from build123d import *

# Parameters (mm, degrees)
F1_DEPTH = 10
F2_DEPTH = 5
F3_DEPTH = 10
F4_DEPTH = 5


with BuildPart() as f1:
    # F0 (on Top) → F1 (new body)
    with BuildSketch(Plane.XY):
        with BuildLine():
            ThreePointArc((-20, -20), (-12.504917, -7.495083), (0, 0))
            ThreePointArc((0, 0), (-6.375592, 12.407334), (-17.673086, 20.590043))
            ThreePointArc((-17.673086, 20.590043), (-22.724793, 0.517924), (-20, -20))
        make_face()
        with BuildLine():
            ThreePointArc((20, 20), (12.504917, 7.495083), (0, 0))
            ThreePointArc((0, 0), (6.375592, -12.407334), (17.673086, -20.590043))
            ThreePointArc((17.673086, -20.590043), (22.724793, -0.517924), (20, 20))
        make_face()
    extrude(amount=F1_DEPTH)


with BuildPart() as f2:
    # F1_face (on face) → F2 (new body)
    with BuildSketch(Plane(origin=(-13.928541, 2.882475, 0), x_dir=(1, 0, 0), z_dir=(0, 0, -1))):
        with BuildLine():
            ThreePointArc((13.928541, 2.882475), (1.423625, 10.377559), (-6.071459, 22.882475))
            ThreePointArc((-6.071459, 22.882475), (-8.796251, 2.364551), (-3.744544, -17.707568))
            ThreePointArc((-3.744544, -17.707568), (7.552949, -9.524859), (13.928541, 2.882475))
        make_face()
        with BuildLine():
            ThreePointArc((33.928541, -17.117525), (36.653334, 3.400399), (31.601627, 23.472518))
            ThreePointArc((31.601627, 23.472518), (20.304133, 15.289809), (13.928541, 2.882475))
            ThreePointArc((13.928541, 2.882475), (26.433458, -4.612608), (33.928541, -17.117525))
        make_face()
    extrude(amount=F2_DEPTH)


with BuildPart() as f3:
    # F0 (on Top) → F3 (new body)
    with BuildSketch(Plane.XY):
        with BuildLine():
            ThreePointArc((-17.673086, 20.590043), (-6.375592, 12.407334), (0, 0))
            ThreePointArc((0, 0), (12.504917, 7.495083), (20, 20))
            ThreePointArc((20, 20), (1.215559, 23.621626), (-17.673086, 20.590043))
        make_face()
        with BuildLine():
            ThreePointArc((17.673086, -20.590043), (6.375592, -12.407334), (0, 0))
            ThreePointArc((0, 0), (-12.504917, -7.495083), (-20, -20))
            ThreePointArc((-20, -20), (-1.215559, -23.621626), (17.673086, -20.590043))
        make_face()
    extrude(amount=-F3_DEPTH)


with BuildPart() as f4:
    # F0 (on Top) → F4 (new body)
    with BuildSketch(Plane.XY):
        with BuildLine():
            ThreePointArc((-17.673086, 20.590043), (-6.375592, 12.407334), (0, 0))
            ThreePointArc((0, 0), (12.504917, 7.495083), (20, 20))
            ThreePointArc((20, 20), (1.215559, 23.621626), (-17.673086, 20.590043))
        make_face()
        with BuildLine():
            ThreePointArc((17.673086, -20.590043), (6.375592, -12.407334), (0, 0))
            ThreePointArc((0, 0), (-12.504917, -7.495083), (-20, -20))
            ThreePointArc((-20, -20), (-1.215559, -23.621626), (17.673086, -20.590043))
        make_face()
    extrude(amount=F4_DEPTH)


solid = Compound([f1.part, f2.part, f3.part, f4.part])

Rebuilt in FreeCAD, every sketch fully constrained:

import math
import FreeCAD as App
import Part
import Sketcher

doc = App.newDocument("Part")
params = doc.addObject("Spreadsheet::Sheet", "Params")
for row, (alias, value) in enumerate([
    ("pad1_length", "10 mm"),
    ("pad2_length", "5 mm"),
    ("pad3_length", "10 mm"),
    ("pad4_length", "5 mm"),
], start=1):
    params.set(f"A{row}", alias)
    params.set(f"B{row}", "=" + value)
    params.setAlias(f"B{row}", alias)

body = doc.addObject("PartDesign::Body", "Body")
body.AllowCompound = True

sketch1 = body.newObject("Sketcher::SketchObject", "Sketch")
sketch1.AttachmentSupport = (doc.getObject("XY_Plane"), [""])
sketch1.MapMode = "FlatFace"
sketch1.addGeometry([
    Part.ArcOfCircle(Part.Circle(App.Vector(8.708283, -28.708283, 0), App.Vector(0, 0, 1), 29.999995), math.radians(106.874489), math.radians(163.125511)),
    Part.ArcOfCircle(Part.Circle(App.Vector(-29.13991, -7.132001, 0), App.Vector(0, 0, 1), 29.999996), math.radians(13.752802), math.radians(67.528272)),
    Part.ArcOfCircle(Part.Circle(App.Vector(32.185049, -2.629904, 0), App.Vector(0, 0, 1), 54.999996), math.radians(155.027647), math.radians(198.41032)),
    Part.ArcOfCircle(Part.Circle(App.Vector(-8.708283, 28.708283, 0), App.Vector(0, 0, 1), 29.999995), math.radians(-73.125511), math.radians(-16.874489)),
    Part.ArcOfCircle(Part.Circle(App.Vector(29.13991, 7.132001, 0), App.Vector(0, 0, 1), 29.999996), math.radians(-166.247198), math.radians(-112.471728)),
    Part.ArcOfCircle(Part.Circle(App.Vector(-32.185049, 2.629904, 0), App.Vector(0, 0, 1), 54.999996), math.radians(-24.972353), math.radians(18.41032)),
], False)
sketch1.addConstraint([
    Sketcher.Constraint("Coincident", 0, 1, 1, 1),
    Sketcher.Constraint("Coincident", 1, 2, 2, 1),
    Sketcher.Constraint("Coincident", 2, 2, 0, 2),
    Sketcher.Constraint("Coincident", 3, 1, 4, 1),
    Sketcher.Constraint("Coincident", 4, 2, 5, 1),
    Sketcher.Constraint("Coincident", 5, 2, 3, 2),
    Sketcher.Constraint("Coincident", 0, 1, -1, 1),
    Sketcher.Constraint("Coincident", 3, 1, -1, 1),
    Sketcher.Constraint("Equal", 0, 1),
    Sketcher.Constraint("Equal", 1, 3),
    Sketcher.Constraint("Equal", 3, 4),
    Sketcher.Constraint("Equal", 2, 5),
    Sketcher.Constraint("Symmetric", 2, 3, 5, 3, -1, 1),
    Sketcher.Constraint("DistanceX", 2, 2, -1, 1, 20.0),
    Sketcher.Constraint("DistanceY", 2, 2, -1, 1, 20.0),
    Sketcher.Constraint("DistanceX", -1, 1, 5, 2, 20.0),
    Sketcher.Constraint("DistanceY", 1, 3, -1, 1, 7.132001),
    Sketcher.Constraint("DistanceY", -1, 1, 4, 3, 7.132001),
    Sketcher.Constraint("Radius", 0, 29.999995),
    Sketcher.Constraint("Radius", 2, 54.999996),
    Sketcher.Constraint("DistanceX", -1, 1, 2, 3, 32.185049),
])
pad1 = body.newObject("PartDesign::Pad", "Pad")
pad1.Profile = sketch1
pad1.setExpression("Length", "Params.pad1_length")
body2 = doc.addObject("PartDesign::Body", "Body001")
body2.AllowCompound = True

sketch2 = body2.newObject("Sketcher::SketchObject", "Sketch001")
sketch2.AttachmentSupport = (doc.getObject("XY_Plane001"), [""])
sketch2.MapMode = "FlatFace"
sketch2.addGeometry([
    Part.ArcOfCircle(Part.Circle(App.Vector(8.708291, -28.708291, 0), App.Vector(0, 0, 1), 30.000005), math.radians(106.8745), math.radians(163.1255)),
    Part.ArcOfCircle(Part.Circle(App.Vector(32.185057, -2.629906, 0), App.Vector(0, 0, 1), 55.000003), math.radians(155.027649), math.radians(198.410316)),
    Part.ArcOfCircle(Part.Circle(App.Vector(-29.139911, -7.132002, 0), App.Vector(0, 0, 1), 29.999998), math.radians(13.752803), math.radians(67.528268)),
    Part.ArcOfCircle(Part.Circle(App.Vector(-32.185049, 2.629904, 0), App.Vector(0, 0, 1), 54.999996), math.radians(-24.972353), math.radians(18.41032)),
    Part.ArcOfCircle(Part.Circle(App.Vector(29.13991, 7.132001, 0), App.Vector(0, 0, 1), 29.999996), math.radians(-166.247198), math.radians(-112.471728)),
    Part.ArcOfCircle(Part.Circle(App.Vector(-8.708283, 28.708283, 0), App.Vector(0, 0, 1), 29.999995), math.radians(-73.125511), math.radians(-16.874489)),
], False)
sketch2.addConstraint([
    Sketcher.Constraint("Coincident", 0, 2, 1, 2),
    Sketcher.Constraint("Coincident", 1, 1, 2, 2),
    Sketcher.Constraint("Coincident", 2, 1, 0, 1),
    Sketcher.Constraint("Coincident", 3, 1, 4, 2),
    Sketcher.Constraint("Coincident", 4, 1, 5, 1),
    Sketcher.Constraint("Coincident", 5, 2, 3, 2),
    Sketcher.Constraint("Coincident", 2, 1, -1, 1),
    Sketcher.Constraint("Coincident", 4, 1, -1, 1),
    Sketcher.Constraint("DistanceX", 0, 2, -1, 1, 20.0),
    Sketcher.Constraint("DistanceY", 0, 2, -1, 1, 20.0),
    Sketcher.Constraint("DistanceX", -1, 1, 5, 2, 20.0),
    Sketcher.Constraint("DistanceY", -1, 1, 5, 2, 20.0),
    Sketcher.Constraint("DistanceY", 2, 3, -1, 1, 7.132002),
    Sketcher.Constraint("DistanceY", -1, 1, 4, 3, 7.132001),
    Sketcher.Constraint("Radius", 0, 30.000005),
    Sketcher.Constraint("Radius", 1, 55.000003),
    Sketcher.Constraint("Radius", 2, 29.999998),
    Sketcher.Constraint("Radius", 3, 54.999996),
    Sketcher.Constraint("Radius", 4, 29.999996),
    Sketcher.Constraint("Radius", 5, 29.999995),
    Sketcher.Constraint("DistanceX", 3, 3, -1, 1, 32.185049),
    Sketcher.Constraint("DistanceY", 1, 3, 3, 3, 5.25981),
])
pad2 = body2.newObject("PartDesign::Pad", "Pad001")
pad2.Profile = sketch2
pad2.setExpression("Length", "Params.pad2_length")
pad2.Reversed = True
body3 = doc.addObject("PartDesign::Body", "Body002")
body3.AllowCompound = True

sketch3 = body3.newObject("Sketcher::SketchObject", "Sketch002")
sketch3.AttachmentSupport = (doc.getObject("XY_Plane002"), [""])
sketch3.MapMode = "FlatFace"
sketch3.addGeometry([
    Part.ArcOfCircle(Part.Circle(App.Vector(-29.13991, -7.132001, 0), App.Vector(0, 0, 1), 29.999996), math.radians(13.752802), math.radians(67.528272)),
    Part.ArcOfCircle(Part.Circle(App.Vector(-8.708283, 28.708283, 0), App.Vector(0, 0, 1), 29.999995), math.radians(-73.125511), math.radians(-16.874489)),
    Part.ArcOfCircle(Part.Circle(App.Vector(0.354244, -31.371634, 0), App.Vector(0, 0, 1), 55.000004), math.radians(69.071936), math.radians(109.133456)),
    Part.ArcOfCircle(Part.Circle(App.Vector(29.13991, 7.132001, 0), App.Vector(0, 0, 1), 29.999996), math.radians(-166.247198), math.radians(-112.471728)),
    Part.ArcOfCircle(Part.Circle(App.Vector(8.708283, -28.708283, 0), App.Vector(0, 0, 1), 29.999995), math.radians(106.874489), math.radians(163.125511)),
    Part.ArcOfCircle(Part.Circle(App.Vector(-0.354244, 31.371634, 0), App.Vector(0, 0, 1), 55.000004), math.radians(-110.928064), math.radians(-70.866544)),
], False)
sketch3.addConstraint([
    Sketcher.Constraint("Coincident", 0, 1, 1, 1),
    Sketcher.Constraint("Coincident", 1, 2, 2, 1),
    Sketcher.Constraint("Coincident", 2, 2, 0, 2),
    Sketcher.Constraint("Coincident", 3, 1, 4, 1),
    Sketcher.Constraint("Coincident", 4, 2, 5, 1),
    Sketcher.Constraint("Coincident", 5, 2, 3, 2),
    Sketcher.Constraint("Coincident", 0, 1, -1, 1),
    Sketcher.Constraint("Coincident", 3, 1, -1, 1),
    Sketcher.Constraint("Equal", 0, 1),
    Sketcher.Constraint("Equal", 1, 3),
    Sketcher.Constraint("Equal", 3, 4),
    Sketcher.Constraint("Equal", 2, 5),
    Sketcher.Constraint("Symmetric", 2, 3, 5, 3, -1, 1),
    Sketcher.Constraint("DistanceX", -1, 1, 1, 2, 20.0),
    Sketcher.Constraint("DistanceY", -1, 1, 1, 2, 20.0),
    Sketcher.Constraint("DistanceX", 4, 2, -1, 1, 20.0),
    Sketcher.Constraint("DistanceY", 0, 3, -1, 1, 7.132001),
    Sketcher.Constraint("DistanceY", -1, 1, 3, 3, 7.132001),
    Sketcher.Constraint("Radius", 0, 29.999996),
    Sketcher.Constraint("Radius", 2, 55.000004),
    Sketcher.Constraint("DistanceX", 2, 3, 4, 3, 8.354039),
])
pad3 = body3.newObject("PartDesign::Pad", "Pad002")
pad3.Profile = sketch3
pad3.setExpression("Length", "Params.pad3_length")
pad3.Reversed = True
body4 = doc.addObject("PartDesign::Body", "Body003")
body4.AllowCompound = True

sketch4 = body4.newObject("Sketcher::SketchObject", "Sketch003")
sketch4.AttachmentSupport = (doc.getObject("XY_Plane003"), [""])
sketch4.MapMode = "FlatFace"
sketch4.addGeometry([
    Part.ArcOfCircle(Part.Circle(App.Vector(-29.13991, -7.132001, 0), App.Vector(0, 0, 1), 29.999996), math.radians(13.752802), math.radians(67.528272)),
    Part.ArcOfCircle(Part.Circle(App.Vector(-8.708283, 28.708283, 0), App.Vector(0, 0, 1), 29.999995), math.radians(-73.125511), math.radians(-16.874489)),
    Part.ArcOfCircle(Part.Circle(App.Vector(0.354244, -31.371634, 0), App.Vector(0, 0, 1), 55.000004), math.radians(69.071936), math.radians(109.133456)),
    Part.ArcOfCircle(Part.Circle(App.Vector(29.13991, 7.132001, 0), App.Vector(0, 0, 1), 29.999996), math.radians(-166.247198), math.radians(-112.471728)),
    Part.ArcOfCircle(Part.Circle(App.Vector(8.708283, -28.708283, 0), App.Vector(0, 0, 1), 29.999995), math.radians(106.874489), math.radians(163.125511)),
    Part.ArcOfCircle(Part.Circle(App.Vector(-0.354244, 31.371634, 0), App.Vector(0, 0, 1), 55.000004), math.radians(-110.928064), math.radians(-70.866544)),
], False)
sketch4.addConstraint([
    Sketcher.Constraint("Coincident", 0, 1, 1, 1),
    Sketcher.Constraint("Coincident", 1, 2, 2, 1),
    Sketcher.Constraint("Coincident", 2, 2, 0, 2),
    Sketcher.Constraint("Coincident", 3, 1, 4, 1),
    Sketcher.Constraint("Coincident", 4, 2, 5, 1),
    Sketcher.Constraint("Coincident", 5, 2, 3, 2),
    Sketcher.Constraint("Coincident", 0, 1, -1, 1),
    Sketcher.Constraint("Coincident", 3, 1, -1, 1),
    Sketcher.Constraint("Equal", 0, 1),
    Sketcher.Constraint("Equal", 1, 3),
    Sketcher.Constraint("Equal", 3, 4),
    Sketcher.Constraint("Equal", 2, 5),
    Sketcher.Constraint("Symmetric", 2, 3, 5, 3, -1, 1),
    Sketcher.Constraint("DistanceX", -1, 1, 1, 2, 20.0),
    Sketcher.Constraint("DistanceY", -1, 1, 1, 2, 20.0),
    Sketcher.Constraint("DistanceX", 4, 2, -1, 1, 20.0),
    Sketcher.Constraint("DistanceY", 0, 3, -1, 1, 7.132001),
    Sketcher.Constraint("DistanceY", -1, 1, 3, 3, 7.132001),
    Sketcher.Constraint("Radius", 0, 29.999996),
    Sketcher.Constraint("Radius", 2, 55.000004),
    Sketcher.Constraint("DistanceX", 2, 3, 4, 3, 8.354039),
])
pad4 = body4.newObject("PartDesign::Pad", "Pad003")
pad4.Profile = sketch4
pad4.setExpression("Length", "Params.pad4_length")

doc.recompute()
